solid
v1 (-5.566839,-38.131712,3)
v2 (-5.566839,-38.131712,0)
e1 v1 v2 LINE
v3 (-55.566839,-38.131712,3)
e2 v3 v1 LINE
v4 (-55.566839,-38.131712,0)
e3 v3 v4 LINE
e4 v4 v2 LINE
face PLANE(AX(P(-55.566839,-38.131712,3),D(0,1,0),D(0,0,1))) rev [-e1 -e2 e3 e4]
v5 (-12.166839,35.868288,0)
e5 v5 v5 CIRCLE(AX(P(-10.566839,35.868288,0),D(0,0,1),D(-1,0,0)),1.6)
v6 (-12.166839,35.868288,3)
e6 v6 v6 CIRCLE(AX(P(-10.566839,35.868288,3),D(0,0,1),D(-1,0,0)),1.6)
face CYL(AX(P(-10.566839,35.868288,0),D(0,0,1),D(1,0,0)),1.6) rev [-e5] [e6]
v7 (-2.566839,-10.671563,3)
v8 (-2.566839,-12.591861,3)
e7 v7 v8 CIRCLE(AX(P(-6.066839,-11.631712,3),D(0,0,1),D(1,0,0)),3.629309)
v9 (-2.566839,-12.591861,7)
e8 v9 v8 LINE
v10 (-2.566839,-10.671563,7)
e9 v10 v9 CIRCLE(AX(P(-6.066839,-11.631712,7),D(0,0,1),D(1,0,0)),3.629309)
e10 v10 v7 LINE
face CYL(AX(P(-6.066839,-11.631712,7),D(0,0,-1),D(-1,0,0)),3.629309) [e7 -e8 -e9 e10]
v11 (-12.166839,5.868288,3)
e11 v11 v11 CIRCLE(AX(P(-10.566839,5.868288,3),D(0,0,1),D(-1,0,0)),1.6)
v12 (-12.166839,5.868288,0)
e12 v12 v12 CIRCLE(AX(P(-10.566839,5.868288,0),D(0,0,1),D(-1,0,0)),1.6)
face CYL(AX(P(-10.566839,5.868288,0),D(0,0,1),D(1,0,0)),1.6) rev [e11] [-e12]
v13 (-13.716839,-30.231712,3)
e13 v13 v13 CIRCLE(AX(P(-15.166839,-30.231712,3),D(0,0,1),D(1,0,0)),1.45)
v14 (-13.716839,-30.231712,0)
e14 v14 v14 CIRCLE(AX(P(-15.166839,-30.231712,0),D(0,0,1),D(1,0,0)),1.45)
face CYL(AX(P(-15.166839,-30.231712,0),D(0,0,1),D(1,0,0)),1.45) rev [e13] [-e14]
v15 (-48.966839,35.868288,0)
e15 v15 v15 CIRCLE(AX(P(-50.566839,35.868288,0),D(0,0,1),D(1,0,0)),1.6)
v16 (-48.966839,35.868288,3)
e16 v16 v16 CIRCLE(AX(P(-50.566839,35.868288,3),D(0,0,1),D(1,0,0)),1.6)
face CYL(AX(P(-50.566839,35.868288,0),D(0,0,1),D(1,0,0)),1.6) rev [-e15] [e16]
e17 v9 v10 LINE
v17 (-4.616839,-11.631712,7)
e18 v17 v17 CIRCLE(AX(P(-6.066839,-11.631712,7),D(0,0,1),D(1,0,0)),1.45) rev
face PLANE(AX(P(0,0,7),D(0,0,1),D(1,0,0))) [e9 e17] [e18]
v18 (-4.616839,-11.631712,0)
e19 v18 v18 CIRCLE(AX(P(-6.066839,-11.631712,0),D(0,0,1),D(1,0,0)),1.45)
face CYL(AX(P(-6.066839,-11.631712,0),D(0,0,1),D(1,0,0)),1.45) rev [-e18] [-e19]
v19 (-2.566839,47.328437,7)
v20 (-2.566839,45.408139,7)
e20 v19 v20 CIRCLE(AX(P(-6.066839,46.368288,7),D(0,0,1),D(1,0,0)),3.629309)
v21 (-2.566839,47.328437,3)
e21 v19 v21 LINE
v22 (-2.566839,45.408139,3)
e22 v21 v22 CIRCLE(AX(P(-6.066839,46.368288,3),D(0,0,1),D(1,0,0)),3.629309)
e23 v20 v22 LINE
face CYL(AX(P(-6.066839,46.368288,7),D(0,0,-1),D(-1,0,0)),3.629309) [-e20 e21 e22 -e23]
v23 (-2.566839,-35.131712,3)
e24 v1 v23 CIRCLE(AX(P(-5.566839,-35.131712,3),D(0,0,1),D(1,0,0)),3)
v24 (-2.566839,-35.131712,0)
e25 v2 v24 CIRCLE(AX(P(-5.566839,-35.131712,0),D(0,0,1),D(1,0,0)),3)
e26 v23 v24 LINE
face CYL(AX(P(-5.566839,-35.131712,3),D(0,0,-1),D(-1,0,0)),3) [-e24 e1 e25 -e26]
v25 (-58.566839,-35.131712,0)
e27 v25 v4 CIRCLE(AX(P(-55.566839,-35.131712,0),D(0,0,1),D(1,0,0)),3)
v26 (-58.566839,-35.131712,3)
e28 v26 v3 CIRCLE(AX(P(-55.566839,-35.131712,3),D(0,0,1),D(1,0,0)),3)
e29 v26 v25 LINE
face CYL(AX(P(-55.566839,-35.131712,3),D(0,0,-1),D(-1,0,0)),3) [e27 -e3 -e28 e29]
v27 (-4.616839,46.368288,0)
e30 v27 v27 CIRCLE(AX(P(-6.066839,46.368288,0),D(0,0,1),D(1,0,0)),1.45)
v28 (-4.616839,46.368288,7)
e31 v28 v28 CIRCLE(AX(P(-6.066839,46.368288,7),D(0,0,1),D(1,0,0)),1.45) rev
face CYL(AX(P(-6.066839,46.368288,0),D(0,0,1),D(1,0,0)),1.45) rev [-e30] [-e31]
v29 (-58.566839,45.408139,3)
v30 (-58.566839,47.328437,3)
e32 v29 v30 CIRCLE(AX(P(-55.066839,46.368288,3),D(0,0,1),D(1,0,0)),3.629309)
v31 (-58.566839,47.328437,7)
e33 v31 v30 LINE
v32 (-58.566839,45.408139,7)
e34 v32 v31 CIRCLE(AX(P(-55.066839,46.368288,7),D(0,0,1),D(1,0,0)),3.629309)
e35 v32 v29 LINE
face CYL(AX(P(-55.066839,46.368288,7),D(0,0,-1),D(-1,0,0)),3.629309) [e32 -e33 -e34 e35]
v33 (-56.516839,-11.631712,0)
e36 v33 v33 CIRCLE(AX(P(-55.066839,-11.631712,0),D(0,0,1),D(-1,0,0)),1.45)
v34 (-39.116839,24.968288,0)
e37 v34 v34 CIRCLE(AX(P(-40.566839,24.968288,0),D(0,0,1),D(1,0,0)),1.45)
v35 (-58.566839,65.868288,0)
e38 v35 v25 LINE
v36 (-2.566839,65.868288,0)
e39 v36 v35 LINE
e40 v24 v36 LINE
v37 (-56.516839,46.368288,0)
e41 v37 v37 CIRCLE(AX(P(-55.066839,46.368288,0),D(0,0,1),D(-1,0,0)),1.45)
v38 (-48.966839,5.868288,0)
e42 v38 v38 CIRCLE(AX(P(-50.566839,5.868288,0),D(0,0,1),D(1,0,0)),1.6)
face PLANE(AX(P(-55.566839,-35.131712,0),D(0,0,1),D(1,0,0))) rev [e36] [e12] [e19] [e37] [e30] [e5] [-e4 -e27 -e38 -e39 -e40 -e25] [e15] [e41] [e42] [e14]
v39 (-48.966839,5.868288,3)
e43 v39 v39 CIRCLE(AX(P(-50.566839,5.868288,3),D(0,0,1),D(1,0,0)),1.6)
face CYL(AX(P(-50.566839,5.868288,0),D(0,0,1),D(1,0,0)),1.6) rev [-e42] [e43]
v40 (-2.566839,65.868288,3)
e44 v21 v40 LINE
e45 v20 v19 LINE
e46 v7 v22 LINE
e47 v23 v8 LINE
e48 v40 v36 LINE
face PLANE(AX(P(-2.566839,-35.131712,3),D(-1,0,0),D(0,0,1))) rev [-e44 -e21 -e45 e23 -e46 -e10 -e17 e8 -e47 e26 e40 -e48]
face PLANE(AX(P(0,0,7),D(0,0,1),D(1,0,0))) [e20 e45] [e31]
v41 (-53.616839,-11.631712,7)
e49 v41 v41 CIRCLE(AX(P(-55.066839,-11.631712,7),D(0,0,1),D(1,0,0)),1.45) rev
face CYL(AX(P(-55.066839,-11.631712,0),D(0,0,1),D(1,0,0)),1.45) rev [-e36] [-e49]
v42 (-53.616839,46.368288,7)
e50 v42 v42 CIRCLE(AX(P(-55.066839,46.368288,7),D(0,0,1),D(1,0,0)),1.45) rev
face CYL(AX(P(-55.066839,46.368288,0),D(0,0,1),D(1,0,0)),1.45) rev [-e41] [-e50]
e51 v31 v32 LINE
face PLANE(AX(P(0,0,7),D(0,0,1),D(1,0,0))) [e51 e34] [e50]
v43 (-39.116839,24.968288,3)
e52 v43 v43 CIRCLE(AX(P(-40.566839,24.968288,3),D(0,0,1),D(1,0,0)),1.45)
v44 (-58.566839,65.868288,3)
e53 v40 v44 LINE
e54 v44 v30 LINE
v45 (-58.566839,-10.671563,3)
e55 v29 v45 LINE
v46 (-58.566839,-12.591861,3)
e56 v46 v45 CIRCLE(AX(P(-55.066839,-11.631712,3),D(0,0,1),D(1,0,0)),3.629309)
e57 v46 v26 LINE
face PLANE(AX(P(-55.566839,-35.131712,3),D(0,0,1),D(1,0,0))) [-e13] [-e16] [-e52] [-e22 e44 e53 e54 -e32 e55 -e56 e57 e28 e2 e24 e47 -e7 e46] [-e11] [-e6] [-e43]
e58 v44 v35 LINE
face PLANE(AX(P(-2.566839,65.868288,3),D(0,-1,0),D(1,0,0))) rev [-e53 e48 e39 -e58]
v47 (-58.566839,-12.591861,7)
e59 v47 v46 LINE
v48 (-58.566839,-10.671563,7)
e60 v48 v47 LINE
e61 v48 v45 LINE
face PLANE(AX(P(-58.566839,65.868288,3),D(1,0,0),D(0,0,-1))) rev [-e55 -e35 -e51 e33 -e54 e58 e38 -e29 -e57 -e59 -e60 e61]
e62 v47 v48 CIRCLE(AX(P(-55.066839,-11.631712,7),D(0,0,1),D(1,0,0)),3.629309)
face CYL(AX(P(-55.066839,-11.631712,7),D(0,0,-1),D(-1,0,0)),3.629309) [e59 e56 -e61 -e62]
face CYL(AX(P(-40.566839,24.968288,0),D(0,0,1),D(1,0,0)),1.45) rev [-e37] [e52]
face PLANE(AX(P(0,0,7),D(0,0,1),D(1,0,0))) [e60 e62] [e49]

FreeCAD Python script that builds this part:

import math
import FreeCAD as App
import Part
import Sketcher

V = App.Vector

doc = App.newDocument("Part")
params = doc.addObject("Spreadsheet::Sheet", "Params")
for row, (alias, value) in enumerate([
    ("sketch1_radius", "3 mm"),
    ("sketch1_width", "50 mm"),
    ("sketch1_height", "101 mm"),
    ("pad1_length", "3 mm"),
    ("sketch2_diameter", "3.2 mm"),
    ("sketch2_diameter2", "2.9 mm"),
    ("sketch3_diameter", "2.9 mm"),
    ("pad2_length", "4 mm"),
], start=1):
    params.set(f"A{row}", alias)
    params.set(f"B{row}", "=" + value)
    params.setAlias(f"B{row}", alias)

body = doc.addObject("PartDesign::Body", "Body")

sketch1 = body.newObject("Sketcher::SketchObject", "Sketch")
sketch1.AttachmentSupport = (doc.getObject("XY_Plane"), [""])
sketch1.MapMode = "FlatFace"
sketch1.addGeometry(Part.LineSegment(V(-55.6, -38.1, 0), V(-5.6, -38.1, 0)), False)
sketch1.addGeometry(Part.ArcOfCircle(Part.Circle(V(-5.6, -35.1, 0), V(0, 0, 1), 3), math.radians(-90), math.radians(0)), False)
sketch1.addGeometry(Part.LineSegment(V(-2.6, -35.1, 0), V(-2.6, 65.9, 0)), False)
sketch1.addGeometry(Part.LineSegment(V(-2.6, 65.9, 0), V(-58.6, 65.9, 0)), False)
sketch1.addGeometry(Part.LineSegment(V(-58.6, 65.9, 0), V(-58.6, -35.1, 0)), False)
sketch1.addGeometry(Part.ArcOfCircle(Part.Circle(V(-55.6, -35.1, 0), V(0, 0, 1), 3), math.radians(180), math.radians(270)), False)
sketch1.addConstraint(Sketcher.Constraint("Tangent", 0, 2, 1, 1))
sketch1.addConstraint(Sketcher.Constraint("Tangent", 1, 2, 2, 1))
sketch1.addConstraint(Sketcher.Constraint("Coincident", 2, 2, 3, 1))
sketch1.addConstraint(Sketcher.Constraint("Coincident", 3, 2, 4, 1))
sketch1.addConstraint(Sketcher.Constraint("Tangent", 4, 2, 5, 1))
sketch1.addConstraint(Sketcher.Constraint("Tangent", 5, 2, 0, 1))
sketch1.addConstraint(Sketcher.Constraint("Horizontal", 0))
sketch1.addConstraint(Sketcher.Constraint("Vertical", 2))
sketch1.addConstraint(Sketcher.Constraint("Horizontal", 3))
sketch1.addConstraint(Sketcher.Constraint("Vertical", 4))
sketch1.addConstraint(Sketcher.Constraint("Equal", 1, 5))
sketch1.addConstraint(Sketcher.Constraint("Radius", 1, 3.0))
sketch1.addConstraint(Sketcher.Constraint("DistanceX", 0, 1, 0, 2, 50.0))
sketch1.addConstraint(Sketcher.Constraint("DistanceY", 2, 1, 2, 2, 101.0))
sketch1.addConstraint(Sketcher.Constraint("DistanceX", 1, 3, -1, 1, 5.566839))
sketch1.addConstraint(Sketcher.Constraint("DistanceY", 1, 3, -1, 1, 35.131712))
sketch1.setExpression("Constraints[11]", "Params.sketch1_radius")
sketch1.setExpression("Constraints[12]", "Params.sketch1_width")
sketch1.setExpression("Constraints[13]", "Params.sketch1_height")
pad1 = body.newObject("PartDesign::Pad", "Pad")
pad1.Profile = sketch1
pad1.setExpression("Length", "Params.pad1_length")

sketch2 = body.newObject("Sketcher::SketchObject", "Sketch001")
sketch2.AttachmentSupport = (doc.getObject("XY_Plane"), [""])
sketch2.MapMode = "FlatFace"
sketch2.AttachmentOffset = App.Placement(V(0, 0, 3), App.Rotation())
sketch2.addGeometry(Part.Circle(V(-50.6, 35.9, 0), V(0, 0, 1), 1.6), False)
sketch2.addGeometry(Part.Circle(V(-50.6, 5.9, 0), V(0, 0, 1), 1.6), False)
sketch2.addGeometry(Part.Circle(V(-10.6, 5.9, 0), V(0, 0, 1), 1.6), False)
sketch2.addGeometry(Part.Circle(V(-10.6, 35.9, 0), V(0, 0, 1), 1.6), False)
sketch2.addGeometry(Part.Circle(V(-40.6, 25, 0), V(0, 0, 1), 1.4), False)
sketch2.addGeometry(Part.Circle(V(-15.2, -30.2, 0), V(0, 0, 1), 1.4), False)
sketch2.addGeometry(Part.Circle(V(-6.1, 46.4, 0), V(0, 0, 1), 1.4), False)
sketch2.addGeometry(Part.Circle(V(-6.1, -11.6, 0), V(0, 0, 1), 1.4), False)
sketch2.addGeometry(Part.Circle(V(-55.1, -11.6, 0), V(0, 0, 1), 1.4), False)
sketch2.addGeometry(Part.Circle(V(-55.1, 46.4, 0), V(0, 0, 1), 1.4), False)
sketch2.addConstraint(Sketcher.Constraint("Equal", 0, 1))
sketch2.addConstraint(Sketcher.Constraint("Equal", 1, 2))
sketch2.addConstraint(Sketcher.Constraint("Equal", 2, 3))
sketch2.addConstraint(Sketcher.Constraint("Equal", 4, 5))
sketch2.addConstraint(Sketcher.Constraint("Equal", 5, 6))
sketch2.addConstraint(Sketcher.Constraint("Equal", 6, 7))
sketch2.addConstraint(Sketcher.Constraint("Equal", 7, 8))
sketch2.addConstraint(Sketcher.Constraint("Equal", 8, 9))
sketch2.addConstraint(Sketcher.Constraint("Horizontal", 1, 3, 2, 3))
sketch2.addConstraint(Sketcher.Constraint("Horizontal", 0, 3, 3, 3))
sketch2.addConstraint(Sketcher.Constraint("Horizontal", 7, 3, 8, 3))
sketch2.addConstraint(Sketcher.Constraint("Horizontal", 6, 3, 9, 3))
sketch2.addConstraint(Sketcher.Constraint("Vertical", 0, 3, 1, 3))
sketch2.addConstraint(Sketcher.Constraint("Vertical", 2, 3, 3, 3))
sketch2.addConstraint(Sketcher.Constraint("Vertical", 6, 3, 7, 3))
sketch2.addConstraint(Sketcher.Constraint("Vertical", 8, 3, 9, 3))
sketch2.addConstraint(Sketcher.Constraint("Diameter", 0, 3.2))
sketch2.addConstraint(Sketcher.Constraint("Diameter", 4, 2.9))
sketch2.addConstraint(Sketcher.Constraint("DistanceY", 1, 3, 0, 3, 30.0))
sketch2.addConstraint(Sketcher.Constraint("DistanceX", 1, 3, 2, 3, 40.0))
sketch2.addConstraint(Sketcher.Constraint("DistanceX", 0, 3, 4, 3, 10.0))
sketch2.addConstraint(Sketcher.Constraint("DistanceX", 9, 3, 6, 3, 49.0))
sketch2.addConstraint(Sketcher.Constraint("DistanceY", 4, 3, 0, 3, 10.9))
sketch2.addConstraint(Sketcher.Constraint("DistanceX", 5, 3, 2, 3, 4.6))
sketch2.addConstraint(Sketcher.Constraint("DistanceY", 5, 3, 2, 3, 36.1))
sketch2.addConstraint(Sketcher.Constraint("DistanceX", 3, 3, 6, 3, 4.5))
sketch2.addConstraint(Sketcher.Constraint("DistanceY", 3, 3, 6, 3, 10.5))
sketch2.addConstraint(Sketcher.Constraint("DistanceY", 7, 3, 2, 3, 17.5))
sketch2.addConstraint(Sketcher.Constraint("DistanceX", 0, 3, -1, 1, 50.566839))
sketch2.addConstraint(Sketcher.Constraint("DistanceY", -1, 1, 0, 3, 35.868288))
sketch2.setExpression("Constraints[16]", "Params.sketch2_diameter")
sketch2.setExpression("Constraints[17]", "Params.sketch2_diameter2")
pocket1 = body.newObject("PartDesign::Pocket", "Pocket")
pocket1.Profile = sketch2
pocket1.Type = "ThroughAll"

sketch3 = body.newObject("Sketcher::SketchObject", "Sketch002")
sketch3.AttachmentSupport = (doc.getObject("XY_Plane"), [""])
sketch3.MapMode = "FlatFace"
sketch3.AttachmentOffset = App.Placement(V(0, 0, 3), App.Rotation())
sketch3.addGeometry(Part.LineSegment(V(-58.6, -10.7, 0), V(-58.6, -12.6, 0)), False)
sketch3.addGeometry(Part.ArcOfCircle(Part.Circle(V(-55.1, -11.6, 0), V(0, 0, 1), 3.6), math.radians(-165), math.radians(0)), False)
sketch3.addGeometry(Part.ArcOfCircle(Part.Circle(V(-55.1, -11.6, 0), V(0, 0, 1), 3.6), math.radians(0), math.radians(165)), False)
sketch3.addGeometry(Part.Circle(V(-55.1, -11.6, 0), V(0, 0, 1), 1.4), False)
sketch3.addGeometry(Part.LineSegment(V(-58.6, 47.3, 0), V(-58.6, 45.4, 0)), False)
sketch3.addGeometry(Part.ArcOfCircle(Part.Circle(V(-55.1, 46.4, 0), V(0, 0, 1), 3.6), math.radians(-165), math.radians(0)), False)
sketch3.addGeometry(Part.ArcOfCircle(Part.Circle(V(-55.1, 46.4, 0), V(0, 0, 1), 3.6), math.radians(0), math.radians(165)), False)
sketch3.addGeometry(Part.Circle(V(-55.1, 46.4, 0), V(0, 0, 1), 1.4), False)
sketch3.addGeometry(Part.ArcOfCircle(Part.Circle(V(-6.1, -11.6, 0), V(0, 0, 1), 3.6), math.radians(15), math.radians(345)), False)
sketch3.addGeometry(Part.LineSegment(V(-2.6, -12.6, 0), V(-2.6, -10.7, 0)), False)
sketch3.addGeometry(Part.Circle(V(-6.1, -11.6, 0), V(0, 0, 1), 1.4), False)
sketch3.addGeometry(Part.ArcOfCircle(Part.Circle(V(-6.1, 46.4, 0), V(0, 0, 1), 3.6), math.radians(15), math.radians(345)), False)
sketch3.addGeometry(Part.LineSegment(V(-2.6, 45.4, 0), V(-2.6, 47.3, 0)), False)
sketch3.addGeometry(Part.Circle(V(-6.1, 46.4, 0), V(0, 0, 1), 1.4), False)
sketch3.addConstraint(Sketcher.Constraint("Coincident", 0, 2, 1, 1))
sketch3.addConstraint(Sketcher.Constraint("Tangent", 1, 2, 2, 1))
sketch3.addConstraint(Sketcher.Constraint("Coincident", 2, 2, 0, 1))
sketch3.addConstraint(Sketcher.Constraint("Coincident", 4, 2, 5, 1))
sketch3.addConstraint(Sketcher.Constraint("Tangent", 5, 2, 6, 1))
sketch3.addConstraint(Sketcher.Constraint("Coincident", 6, 2, 4, 1))
sketch3.addConstraint(Sketcher.Constraint("Coincident", 8, 1, 9, 2))
sketch3.addConstraint(Sketcher.Constraint("Coincident", 9, 1, 8, 2))
sketch3.addConstraint(Sketcher.Constraint("Coincident", 11, 1, 12, 2))
sketch3.addConstraint(Sketcher.Constraint("Coincident", 12, 1, 11, 2))
sketch3.addConstraint(Sketcher.Constraint("Vertical", 0))
sketch3.addConstraint(Sketcher.Constraint("Vertical", 4))
sketch3.addConstraint(Sketcher.Constraint("Vertical", 9))
sketch3.addConstraint(Sketcher.Constraint("Vertical", 12))
sketch3.addConstraint(Sketcher.Constraint("Coincident", 3, 3, 1, 3))
sketch3.addConstraint(Sketcher.Constraint("Coincident", 7, 3, 5, 3))
sketch3.addConstraint(Sketcher.Constraint("Coincident", 10, 3, 8, 3))
sketch3.addConstraint(Sketcher.Constraint("Coincident", 13, 3, 11, 3))
sketch3.addConstraint(Sketcher.Constraint("Equal", 1, 2))
sketch3.addConstraint(Sketcher.Constraint("Equal", 2, 5))
sketch3.addConstraint(Sketcher.Constraint("Equal", 5, 6))
sketch3.addConstraint(Sketcher.Constraint("Equal", 3, 7))
sketch3.addConstraint(Sketcher.Constraint("Equal", 6, 8))
sketch3.addConstraint(Sketcher.Constraint("Equal", 7, 10))
sketch3.addConstraint(Sketcher.Constraint("Equal", 8, 11))
sketch3.addConstraint(Sketcher.Constraint("Equal", 10, 13))
sketch3.addConstraint(Sketcher.Constraint("Horizontal", 3, 3, 8, 3))
sketch3.addConstraint(Sketcher.Constraint("Horizontal", 7, 3, 11, 3))
sketch3.addConstraint(Sketcher.Constraint("Horizontal", 10, 3, 1, 2))
sketch3.addConstraint(Sketcher.Constraint("Horizontal", 13, 3, 5, 2))
sketch3.addConstraint(Sketcher.Constraint("Horizontal", 2, 2, 8, 1))
sketch3.addConstraint(Sketcher.Constraint("Horizontal", 6, 2, 11, 1))
sketch3.addConstraint(Sketcher.Constraint("Vertical", 3, 3, 5, 3))
sketch3.addConstraint(Sketcher.Constraint("Vertical", 10, 3, 11, 3))
sketch3.addConstraint(Sketcher.Constraint("Vertical", 2, 2, 4, 2))
sketch3.addConstraint(Sketcher.Constraint("Diameter", 3, 2.9))
sketch3.addConstraint(Sketcher.Constraint("DistanceY", 1, 3, 5, 3, 58.0))
sketch3.addConstraint(Sketcher.Constraint("DistanceX", 1, 3, 8, 3, 49.0))
sketch3.addConstraint(Sketcher.Constraint("DistanceX", 0, 2, 1, 3, 3.5))
sketch3.addConstraint(Sketcher.Constraint("Radius", 1, 3.629309))
sketch3.addConstraint(Sketcher.Constraint("DistanceX", 1, 3, -1, 1, 55.066839))
sketch3.addConstraint(Sketcher.Constraint("DistanceY", 0, 2, -1, 1, 12.591861))
sketch3.setExpression("Constraints[35]", "Params.sketch3_diameter")
pad2 = body.newObject("PartDesign::Pad", "Pad001")
pad2.Profile = sketch3
pad2.setExpression("Length", "Params.pad2_length")

doc.recompute()
